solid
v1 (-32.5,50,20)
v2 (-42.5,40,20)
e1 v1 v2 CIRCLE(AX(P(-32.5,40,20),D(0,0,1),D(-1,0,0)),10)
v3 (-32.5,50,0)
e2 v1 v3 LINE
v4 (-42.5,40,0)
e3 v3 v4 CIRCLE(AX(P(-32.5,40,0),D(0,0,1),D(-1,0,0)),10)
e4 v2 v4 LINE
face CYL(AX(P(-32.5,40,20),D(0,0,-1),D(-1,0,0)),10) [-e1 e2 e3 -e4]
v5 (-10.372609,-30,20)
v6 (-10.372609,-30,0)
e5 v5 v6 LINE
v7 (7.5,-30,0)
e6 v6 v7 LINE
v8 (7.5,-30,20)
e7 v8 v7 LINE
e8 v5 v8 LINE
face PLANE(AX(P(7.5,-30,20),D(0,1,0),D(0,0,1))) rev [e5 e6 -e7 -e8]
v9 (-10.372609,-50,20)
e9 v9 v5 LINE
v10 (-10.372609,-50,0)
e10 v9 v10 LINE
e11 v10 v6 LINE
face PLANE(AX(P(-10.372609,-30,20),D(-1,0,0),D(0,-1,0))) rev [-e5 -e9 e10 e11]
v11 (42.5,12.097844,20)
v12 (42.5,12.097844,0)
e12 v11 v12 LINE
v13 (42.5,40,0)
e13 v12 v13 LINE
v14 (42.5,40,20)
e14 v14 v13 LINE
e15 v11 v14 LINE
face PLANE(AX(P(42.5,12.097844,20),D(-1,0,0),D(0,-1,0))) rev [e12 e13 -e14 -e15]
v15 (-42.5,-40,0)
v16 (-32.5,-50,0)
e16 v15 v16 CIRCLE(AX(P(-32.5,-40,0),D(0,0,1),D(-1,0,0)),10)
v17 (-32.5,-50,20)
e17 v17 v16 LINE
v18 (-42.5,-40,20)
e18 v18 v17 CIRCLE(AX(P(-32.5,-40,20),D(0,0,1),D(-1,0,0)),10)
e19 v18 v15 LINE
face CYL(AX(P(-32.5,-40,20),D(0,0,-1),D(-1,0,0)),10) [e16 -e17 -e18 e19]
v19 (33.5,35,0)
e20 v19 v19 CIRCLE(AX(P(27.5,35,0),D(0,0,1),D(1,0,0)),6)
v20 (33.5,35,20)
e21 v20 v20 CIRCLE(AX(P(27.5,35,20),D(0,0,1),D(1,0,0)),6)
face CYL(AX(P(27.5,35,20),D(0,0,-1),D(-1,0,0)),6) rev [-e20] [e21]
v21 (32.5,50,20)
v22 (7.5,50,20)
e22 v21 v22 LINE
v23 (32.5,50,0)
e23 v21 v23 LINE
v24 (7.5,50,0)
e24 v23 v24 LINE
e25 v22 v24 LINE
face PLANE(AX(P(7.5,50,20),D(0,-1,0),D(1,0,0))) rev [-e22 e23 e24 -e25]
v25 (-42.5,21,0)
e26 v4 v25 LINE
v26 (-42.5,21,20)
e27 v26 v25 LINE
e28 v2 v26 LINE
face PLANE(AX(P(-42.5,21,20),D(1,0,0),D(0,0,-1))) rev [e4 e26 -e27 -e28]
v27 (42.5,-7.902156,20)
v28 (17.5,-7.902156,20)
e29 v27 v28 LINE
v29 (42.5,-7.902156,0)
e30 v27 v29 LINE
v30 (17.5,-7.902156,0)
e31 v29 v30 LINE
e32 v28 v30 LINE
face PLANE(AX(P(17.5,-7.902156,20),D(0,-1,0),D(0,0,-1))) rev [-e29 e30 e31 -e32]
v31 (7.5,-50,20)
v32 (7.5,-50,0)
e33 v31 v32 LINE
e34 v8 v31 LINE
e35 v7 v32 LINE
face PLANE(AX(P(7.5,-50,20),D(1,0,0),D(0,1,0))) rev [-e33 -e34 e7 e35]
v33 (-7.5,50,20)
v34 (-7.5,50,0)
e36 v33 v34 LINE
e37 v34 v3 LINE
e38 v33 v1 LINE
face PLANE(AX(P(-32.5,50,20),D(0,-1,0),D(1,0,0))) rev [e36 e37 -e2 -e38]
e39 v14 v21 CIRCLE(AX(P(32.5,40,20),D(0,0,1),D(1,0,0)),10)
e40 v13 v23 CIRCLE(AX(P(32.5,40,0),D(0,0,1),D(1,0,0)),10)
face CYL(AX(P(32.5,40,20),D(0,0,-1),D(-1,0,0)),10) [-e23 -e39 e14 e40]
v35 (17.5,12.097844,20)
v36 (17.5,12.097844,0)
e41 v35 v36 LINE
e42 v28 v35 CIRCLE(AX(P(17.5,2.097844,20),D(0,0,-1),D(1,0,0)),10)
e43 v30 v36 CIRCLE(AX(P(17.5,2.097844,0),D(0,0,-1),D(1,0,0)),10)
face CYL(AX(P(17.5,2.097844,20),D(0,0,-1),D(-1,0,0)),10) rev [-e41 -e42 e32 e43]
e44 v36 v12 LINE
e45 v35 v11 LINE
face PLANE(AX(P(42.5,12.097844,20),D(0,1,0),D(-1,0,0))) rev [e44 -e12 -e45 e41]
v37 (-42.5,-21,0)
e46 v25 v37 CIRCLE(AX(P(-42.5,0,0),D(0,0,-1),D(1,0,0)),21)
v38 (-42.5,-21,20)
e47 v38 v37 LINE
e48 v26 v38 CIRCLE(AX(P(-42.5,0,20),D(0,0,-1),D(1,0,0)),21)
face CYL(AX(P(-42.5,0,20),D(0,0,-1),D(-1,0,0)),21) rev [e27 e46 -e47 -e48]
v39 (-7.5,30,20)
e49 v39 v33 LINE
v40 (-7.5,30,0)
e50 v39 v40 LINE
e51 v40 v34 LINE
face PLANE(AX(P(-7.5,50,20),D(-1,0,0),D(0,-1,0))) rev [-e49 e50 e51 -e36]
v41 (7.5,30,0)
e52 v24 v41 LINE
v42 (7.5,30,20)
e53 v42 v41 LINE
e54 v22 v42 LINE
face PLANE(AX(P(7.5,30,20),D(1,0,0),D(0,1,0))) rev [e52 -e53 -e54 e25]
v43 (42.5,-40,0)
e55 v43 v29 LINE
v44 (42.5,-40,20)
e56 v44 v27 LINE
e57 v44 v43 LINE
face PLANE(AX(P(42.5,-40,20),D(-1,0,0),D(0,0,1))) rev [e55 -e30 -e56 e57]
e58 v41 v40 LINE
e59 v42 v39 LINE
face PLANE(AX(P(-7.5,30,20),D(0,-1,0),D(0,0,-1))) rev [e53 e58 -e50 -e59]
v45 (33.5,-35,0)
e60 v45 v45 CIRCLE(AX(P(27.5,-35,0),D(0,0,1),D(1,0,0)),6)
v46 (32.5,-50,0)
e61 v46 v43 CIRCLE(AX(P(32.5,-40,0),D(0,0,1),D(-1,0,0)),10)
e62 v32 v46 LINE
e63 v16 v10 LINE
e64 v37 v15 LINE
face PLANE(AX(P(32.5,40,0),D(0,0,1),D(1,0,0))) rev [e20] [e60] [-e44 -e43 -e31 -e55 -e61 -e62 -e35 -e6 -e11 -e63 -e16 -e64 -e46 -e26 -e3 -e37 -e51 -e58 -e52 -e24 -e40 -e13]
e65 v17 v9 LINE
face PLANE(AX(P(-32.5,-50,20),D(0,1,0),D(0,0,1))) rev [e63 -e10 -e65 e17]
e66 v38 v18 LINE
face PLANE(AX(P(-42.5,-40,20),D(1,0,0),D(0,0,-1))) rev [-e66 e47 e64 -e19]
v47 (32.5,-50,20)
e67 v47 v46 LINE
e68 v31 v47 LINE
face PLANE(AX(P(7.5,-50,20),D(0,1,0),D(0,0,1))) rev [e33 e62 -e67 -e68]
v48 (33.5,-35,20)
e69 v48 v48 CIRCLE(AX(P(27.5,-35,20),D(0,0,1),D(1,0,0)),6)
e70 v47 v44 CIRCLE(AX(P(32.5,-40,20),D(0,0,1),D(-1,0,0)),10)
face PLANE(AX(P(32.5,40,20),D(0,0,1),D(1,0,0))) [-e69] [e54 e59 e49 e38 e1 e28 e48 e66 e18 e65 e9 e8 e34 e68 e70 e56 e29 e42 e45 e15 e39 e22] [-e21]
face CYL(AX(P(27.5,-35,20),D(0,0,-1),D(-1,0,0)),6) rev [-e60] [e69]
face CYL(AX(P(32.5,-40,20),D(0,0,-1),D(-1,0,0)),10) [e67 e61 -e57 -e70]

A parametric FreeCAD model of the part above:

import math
import FreeCAD as App
import Part
import Sketcher

doc = App.newDocument("Part")
params = doc.addObject("Spreadsheet::Sheet", "Params")
for row, (alias, value) in enumerate([
    ("sketch1_diameter", "12 mm"),
    ("sketch1_radius", "10 mm"),
    ("sketch1_radius2", "21 mm"),
    ("sketch1_width", "25 mm"),
    ("sketch1_width2", "15 mm"),
    ("pad1_length", "20 mm"),
], start=1):
    params.set(f"A{row}", alias)
    params.set(f"B{row}", "=" + value)
    params.setAlias(f"B{row}", alias)

body = doc.addObject("PartDesign::Body", "Body")

# Sketch on XY plane
sketch1 = body.newObject("Sketcher::SketchObject", "Sketch")
sketch1.AttachmentSupport = (doc.getObject("XY_Plane"), [""])
sketch1.MapMode = "FlatFace"
sketch1.addGeometry(Part.LineSegment(App.Vector(-7.5, 30, 0), App.Vector(-7.5, 50, 0)), False)
sketch1.addGeometry(Part.LineSegment(App.Vector(-7.5, 50, 0), App.Vector(-32.5, 50, 0)), False)
sketch1.addGeometry(Part.ArcOfCircle(Part.Circle(App.Vector(-32.5, 40, 0), App.Vector(0, 0, 1), 10), math.radians(90), math.radians(180)), False)
sketch1.addGeometry(Part.LineSegment(App.Vector(-42.5, 40, 0), App.Vector(-42.5, 21, 0)), False)
sketch1.addGeometry(Part.ArcOfCircle(Part.Circle(App.Vector(-42.5, 0, 0), App.Vector(0, 0, 1), 21), math.radians(-90), math.radians(90)), False)
sketch1.addGeometry(Part.LineSegment(App.Vector(-42.5, -21, 0), App.Vector(-42.5, -40, 0)), False)
sketch1.addGeometry(Part.ArcOfCircle(Part.Circle(App.Vector(-32.5, -40, 0), App.Vector(0, 0, 1), 10), math.radians(180), math.radians(270)), False)
sketch1.addGeometry(Part.LineSegment(App.Vector(-32.5, -50, 0), App.Vector(-10.372609, -50, 0)), False)
sketch1.addGeometry(Part.LineSegment(App.Vector(-10.372609, -50, 0), App.Vector(-10.372609, -30, 0)), False)
sketch1.addGeometry(Part.LineSegment(App.Vector(-10.372609, -30, 0), App.Vector(7.5, -30, 0)), False)
sketch1.addGeometry(Part.LineSegment(App.Vector(7.5, -30, 0), App.Vector(7.5, -50, 0)), False)
sketch1.addGeometry(Part.LineSegment(App.Vector(7.5, -50, 0), App.Vector(32.5, -50, 0)), False)
sketch1.addGeometry(Part.ArcOfCircle(Part.Circle(App.Vector(32.5, -40, 0), App.Vector(0, 0, 1), 10), math.radians(-90), math.radians(0)), False)
sketch1.addGeometry(Part.LineSegment(App.Vector(42.5, -40, 0), App.Vector(42.5, -7.902156, 0)), False)
sketch1.addGeometry(Part.LineSegment(App.Vector(42.5, -7.902156, 0), App.Vector(17.5, -7.902156, 0)), False)
sketch1.addGeometry(Part.ArcOfCircle(Part.Circle(App.Vector(17.5, 2.097844, 0), App.Vector(0, 0, 1), 10), math.radians(90), math.radians(270)), False)
sketch1.addGeometry(Part.LineSegment(App.Vector(17.5, 12.097844, 0), App.Vector(42.5, 12.097844, 0)), False)
sketch1.addGeometry(Part.LineSegment(App.Vector(42.5, 12.097844, 0), App.Vector(42.5, 40, 0)), False)
sketch1.addGeometry(Part.ArcOfCircle(Part.Circle(App.Vector(32.5, 40, 0), App.Vector(0, 0, 1), 10), math.radians(0), math.radians(90)), False)
sketch1.addGeometry(Part.LineSegment(App.Vector(32.5, 50, 0), App.Vector(7.5, 50, 0)), False)
sketch1.addGeometry(Part.LineSegment(App.Vector(7.5, 50, 0), App.Vector(7.5, 30, 0)), False)
sketch1.addGeometry(Part.LineSegment(App.Vector(7.5, 30, 0), App.Vector(-7.5, 30, 0)), False)
sketch1.addGeometry(Part.Circle(App.Vector(27.5, -35, 0), App.Vector(0, 0, 1), 6), False)
sketch1.addGeometry(Part.Circle(App.Vector(27.5, 35, 0), App.Vector(0, 0, 1), 6), False)
sketch1.addConstraint(Sketcher.Constraint("Coincident", 0, 2, 1, 1))
sketch1.addConstraint(Sketcher.Constraint("Tangent", 1, 2, 2, 1))
sketch1.addConstraint(Sketcher.Constraint("Tangent", 2, 2, 3, 1))
sketch1.addConstraint(Sketcher.Constraint("Coincident", 3, 2, 4, 2))
sketch1.addConstraint(Sketcher.Constraint("Coincident", 4, 1, 5, 1))
sketch1.addConstraint(Sketcher.Constraint("Tangent", 5, 2, 6, 1))
sketch1.addConstraint(Sketcher.Constraint("Tangent", 6, 2, 7, 1))
sketch1.addConstraint(Sketcher.Constraint("Coincident", 7, 2, 8, 1))
sketch1.addConstraint(Sketcher.Constraint("Coincident", 8, 2, 9, 1))
sketch1.addConstraint(Sketcher.Constraint("Coincident", 9, 2, 10, 1))
sketch1.addConstraint(Sketcher.Constraint("Coincident", 10, 2, 11, 1))
sketch1.addConstraint(Sketcher.Constraint("Tangent", 11, 2, 12, 1))
sketch1.addConstraint(Sketcher.Constraint("Tangent", 12, 2, 13, 1))
sketch1.addConstraint(Sketcher.Constraint("Coincident", 13, 2, 14, 1))
sketch1.addConstraint(Sketcher.Constraint("Tangent", 14, 2, 15, 2))
sketch1.addConstraint(Sketcher.Constraint("Tangent", 15, 1, 16, 1))
sketch1.addConstraint(Sketcher.Constraint("Coincident", 16, 2, 17, 1))
sketch1.addConstraint(Sketcher.Constraint("Tangent", 17, 2, 18, 1))
sketch1.addConstraint(Sketcher.Constraint("Tangent", 18, 2, 19, 1))
sketch1.addConstraint(Sketcher.Constraint("Coincident", 19, 2, 20, 1))
sketch1.addConstraint(Sketcher.Constraint("Coincident", 20, 2, 21, 1))
sketch1.addConstraint(Sketcher.Constraint("Coincident", 21, 2, 0, 1))
sketch1.addConstraint(Sketcher.Constraint("Vertical", 0))
sketch1.addConstraint(Sketcher.Constraint("Horizontal", 1))
sketch1.addConstraint(Sketcher.Constraint("Vertical", 3))
sketch1.addConstraint(Sketcher.Constraint("Vertical", 5))
sketch1.addConstraint(Sketcher.Constraint("Horizontal", 7))
sketch1.addConstraint(Sketcher.Constraint("Vertical", 8))
sketch1.addConstraint(Sketcher.Constraint("Horizontal", 9))
sketch1.addConstraint(Sketcher.Constraint("Vertical", 10))
sketch1.addConstraint(Sketcher.Constraint("Horizontal", 11))
sketch1.addConstraint(Sketcher.Constraint("Vertical", 13))
sketch1.addConstraint(Sketcher.Constraint("Horizontal", 14))
sketch1.addConstraint(Sketcher.Constraint("Horizontal", 16))
sketch1.addConstraint(Sketcher.Constraint("Vertical", 17))
sketch1.addConstraint(Sketcher.Constraint("Horizontal", 19))
sketch1.addConstraint(Sketcher.Constraint("Vertical", 20))
sketch1.addConstraint(Sketcher.Constraint("Horizontal", 21))
sketch1.addConstraint(Sketcher.Constraint("Equal", 2, 6))
sketch1.addConstraint(Sketcher.Constraint("Equal", 6, 12))
sketch1.addConstraint(Sketcher.Constraint("Equal", 12, 15))
sketch1.addConstraint(Sketcher.Constraint("Equal", 15, 18))
sketch1.addConstraint(Sketcher.Constraint("Equal", 22, 23))
sketch1.addConstraint(Sketcher.Constraint("Symmetric", 2, 3, 12, 3, -1, 1))
sketch1.addConstraint(Sketcher.Constraint("Symmetric", 6, 3, 18, 3, -1, 1))
sketch1.addConstraint(Sketcher.Constraint("Symmetric", 9, 2, 21, 2, -1, 1))
sketch1.addConstraint(Sketcher.Constraint("Symmetric", 6, 3, 12, 3, -2))
sketch1.addConstraint(Sketcher.Constraint("Symmetric", 22, 3, 23, 3, -1))
sketch1.addConstraint(Sketcher.Constraint("PointOnObject", 4, 3, -1))
sketch1.addConstraint(Sketcher.Constraint("Vertical", 4, 3, 2, 2))
sketch1.addConstraint(Sketcher.Constraint("Vertical", 10, 2, 19, 2))
sketch1.addConstraint(Sketcher.Constraint("Equal", 11, 14))
sketch1.addConstraint(Sketcher.Constraint("Diameter", 22, 12.0))
sketch1.addConstraint(Sketcher.Constraint("Radius", 2, 10.0))
sketch1.addConstraint(Sketcher.Constraint("Radius", 4, 21.0))
sketch1.addConstraint(Sketcher.Constraint("DistanceX", 1, 2, 1, 1, 25.0))
sketch1.addConstraint(Sketcher.Constraint("DistanceX", 21, 2, 21, 1, 15.0))
sketch1.addConstraint(Sketcher.Constraint("DistanceY", 0, 1, 0, 2, 20.0))
sketch1.addConstraint(Sketcher.Constraint("DistanceY", 3, 2, 3, 1, 19.0))
sketch1.addConstraint(Sketcher.Constraint("DistanceY", 22, 3, -1, 1, 35.0))
sketch1.addConstraint(Sketcher.Constraint("DistanceX", 22, 3, 12, 3, 5.0))
sketch1.addConstraint(Sketcher.Constraint("DistanceX", 7, 1, 7, 2, 22.127391))
sketch1.addConstraint(Sketcher.Constraint("DistanceY", 13, 1, 13, 2, 32.097844))
sketch1.setExpression("Constraints[52]", "Params.sketch1_diameter")
sketch1.setExpression("Constraints[53]", "Params.sketch1_radius")
sketch1.setExpression("Constraints[54]", "Params.sketch1_radius2")
sketch1.setExpression("Constraints[55]", "Params.sketch1_width")
sketch1.setExpression("Constraints[56]", "Params.sketch1_width2")
pad1 = body.newObject("PartDesign::Pad", "Pad")
pad1.Profile = sketch1
pad1.setExpression("Length", "Params.pad1_length")

doc.recompute()
